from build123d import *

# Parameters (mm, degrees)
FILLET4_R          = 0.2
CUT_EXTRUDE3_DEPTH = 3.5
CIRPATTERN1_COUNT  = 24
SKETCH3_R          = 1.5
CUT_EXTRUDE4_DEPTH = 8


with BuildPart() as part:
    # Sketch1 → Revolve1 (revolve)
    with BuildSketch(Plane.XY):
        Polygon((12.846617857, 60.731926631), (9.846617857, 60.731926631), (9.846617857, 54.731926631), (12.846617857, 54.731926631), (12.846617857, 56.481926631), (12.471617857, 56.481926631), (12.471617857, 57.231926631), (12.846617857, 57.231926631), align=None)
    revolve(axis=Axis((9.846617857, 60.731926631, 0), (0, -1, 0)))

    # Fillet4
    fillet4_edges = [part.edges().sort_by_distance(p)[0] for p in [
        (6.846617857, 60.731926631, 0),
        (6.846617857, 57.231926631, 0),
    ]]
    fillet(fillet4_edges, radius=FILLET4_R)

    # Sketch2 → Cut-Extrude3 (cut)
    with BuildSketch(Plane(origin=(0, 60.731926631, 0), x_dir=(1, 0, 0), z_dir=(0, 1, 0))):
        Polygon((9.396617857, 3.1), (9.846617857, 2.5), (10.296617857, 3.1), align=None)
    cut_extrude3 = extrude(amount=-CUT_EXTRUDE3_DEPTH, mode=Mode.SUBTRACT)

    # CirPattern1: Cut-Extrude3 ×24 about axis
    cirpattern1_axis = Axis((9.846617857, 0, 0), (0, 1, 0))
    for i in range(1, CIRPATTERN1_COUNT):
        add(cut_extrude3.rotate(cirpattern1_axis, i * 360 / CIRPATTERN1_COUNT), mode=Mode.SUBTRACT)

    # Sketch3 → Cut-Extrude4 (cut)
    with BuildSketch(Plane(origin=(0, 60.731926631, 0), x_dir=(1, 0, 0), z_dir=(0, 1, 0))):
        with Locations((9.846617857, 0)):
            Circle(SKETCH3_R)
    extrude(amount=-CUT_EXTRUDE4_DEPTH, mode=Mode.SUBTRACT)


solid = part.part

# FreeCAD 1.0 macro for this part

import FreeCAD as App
import Part
import Sketcher
from FreeCAD import Vector


def edges_at(feature, points):
    """Names of the edges that pass closest to the given points."""
    edges = feature.Shape.Edges
    near = lambda p: min(range(len(edges)), key=lambda i: edges[i].distToShape(Part.Vertex(*p))[0])
    return sorted({f"Edge{near(p) + 1}" for p in points})


def add_polygon(sketch, points):
    """Adds a closed chain of lines whose ends are joined by coincident constraints."""
    first, n = sketch.GeometryCount, len(points)
    for a, b in zip(points, points[1:] + points[:1]):
        sketch.addGeometry(Part.LineSegment(App.Vector(*a, 0), App.Vector(*b, 0)), False)
    for i in range(n):
        sketch.addConstraint(Sketcher.Constraint("Coincident", first + i, 2, first + (i + 1) % n, 1))

doc = App.newDocument("Part")
body = doc.addObject("PartDesign::Body", "Body")

# Sketch on XY plane
sketch1 = body.newObject("Sketcher::SketchObject", "Sketch")
sketch1.AttachmentSupport = (doc.getObject("XY_Plane"), [""])
sketch1.MapMode = "FlatFace"
add_polygon(sketch1, [(12.846618, 60.731927), (9.846618, 60.731927), (9.846618, 54.731927), (12.846618, 54.731927), (12.846618, 56.481927), (12.471618, 56.481927), (12.471618, 57.231927), (12.846618, 57.231927)])  # lines 0-7
sketch1.addGeometry(Part.LineSegment(Vector(9.846618, 60.731927, 0), Vector(9.846618, 54.731927, 0)), True)  # axis
sketch1.addConstraint(Sketcher.Constraint("Horizontal", 0))
sketch1.addConstraint(Sketcher.Constraint("Vertical", 1))
sketch1.addConstraint(Sketcher.Constraint("Horizontal", 2))
sketch1.addConstraint(Sketcher.Constraint("Vertical", 3))
sketch1.addConstraint(Sketcher.Constraint("Horizontal", 4))
sketch1.addConstraint(Sketcher.Constraint("Vertical", 5))
sketch1.addConstraint(Sketcher.Constraint("Horizontal", 6))
sketch1.addConstraint(Sketcher.Constraint("Vertical", 7))
sketch1.addConstraint(Sketcher.Constraint("Vertical", 8))
sketch1.addConstraint(Sketcher.Constraint("Coincident", 8, 1, 0, 2))
sketch1.addConstraint(Sketcher.Constraint("Horizontal", 2, 2, 8, 2))
sketch1.addConstraint(Sketcher.Constraint("Vertical", 3, 2, 6, 2))
sketch1.addConstraint(Sketcher.Constraint("DistanceX", 0, 2, 0, 1, 3.0))
sketch1.addConstraint(Sketcher.Constraint("DistanceY", 1, 2, 1, 1, 6.0))
sketch1.addConstraint(Sketcher.Constraint("DistanceY", 7, 1, 7, 2, 3.5))
sketch1.addConstraint(Sketcher.Constraint("DistanceY", 3, 1, 3, 2, 1.75))
sketch1.addConstraint(Sketcher.Constraint("DistanceX", 4, 2, 4, 1, 0.375))
sketch1.addConstraint(Sketcher.Constraint("DistanceX", -1, 1, 0, 2, 9.846618))
sketch1.addConstraint(Sketcher.Constraint("DistanceY", -1, 1, 0, 2, 60.731927))
revolution = body.newObject("PartDesign::Revolution", "Revolution")
revolution.Profile = sketch1
revolution.ReferenceAxis = (sketch1, ["Axis0"])
revolution.Angle = 360
doc.recompute()

fillet = body.newObject("PartDesign::Fillet", "Fillet")
fillet.Base = (revolution, edges_at(revolution, [(6.847, 60.732, 0), (6.847, 57.232, 0)]))
fillet.Radius = 0.2

# Sketch on XZ plane
sketch2 = body.newObject("Sketcher::SketchObject", "Sketch001")
sketch2.AttachmentSupport = (doc.getObject("XZ_Plane"), [""])
sketch2.MapMode = "FlatFace"
sketch2.AttachmentOffset = App.Placement(Vector(0, 0, -60.731927), App.Rotation())
add_polygon(sketch2, [(9.396618, -3.1), (9.846618, -2.5), (10.296618, -3.1)])  # lines 0-2
sketch2.addConstraint(Sketcher.Constraint("Horizontal", 2))
sketch2.addConstraint(Sketcher.Constraint("Equal", 0, 1))
sketch2.addConstraint(Sketcher.Constraint("DistanceX", 2, 2, 2, 1, 0.9))
sketch2.addConstraint(Sketcher.Constraint("DistanceY", 0, 2, -1, 1, 2.5))
sketch2.addConstraint(Sketcher.Constraint("DistanceY", 1, 2, -1, 1, 3.1))
sketch2.addConstraint(Sketcher.Constraint("DistanceX", -1, 1, 0, 2, 9.846618))
pocket1 = body.newObject("PartDesign::Pocket", "Pocket")
pocket1.Profile = sketch2
pocket1.Length = 3.5
pocket1.Reversed = True
doc.recompute()

datumline = body.newObject("PartDesign::Line", "DatumLine")
datumline.Placement = App.Placement(Vector(9.846618, 0, 0), App.Rotation(Vector(0, 0, 1), Vector(0, 1, 0)))
polarpattern = body.newObject("PartDesign::PolarPattern", "PolarPattern")
polarpattern.Originals = [pocket1]
polarpattern.Axis = (datumline, [""])
polarpattern.Angle = 360
polarpattern.Occurrences = 24
body.Tip = polarpattern

# Sketch on XZ plane
sketch3 = body.newObject("Sketcher::SketchObject", "Sketch002")
sketch3.AttachmentSupport = (doc.getObject("XZ_Plane"), [""])
sketch3.MapMode = "FlatFace"
sketch3.AttachmentOffset = App.Placement(Vector(0, 0, -60.731927), App.Rotation())
sketch3.addGeometry(Part.Circle(Vector(9.846618, 0, 0), Vector(0, 0, 1), 1.5), False)
sketch3.addConstraint(Sketcher.Constraint("PointOnObject", 0, 3, -1))
sketch3.addConstraint(Sketcher.Constraint("Diameter", 0, 3.0))
sketch3.addConstraint(Sketcher.Constraint("DistanceX", -1, 1, 0, 3, 9.846618))
pocket2 = body.newObject("PartDesign::Pocket", "Pocket001")
pocket2.Profile = sketch3
pocket2.Length = 8
pocket2.Reversed = True

doc.recompute()
